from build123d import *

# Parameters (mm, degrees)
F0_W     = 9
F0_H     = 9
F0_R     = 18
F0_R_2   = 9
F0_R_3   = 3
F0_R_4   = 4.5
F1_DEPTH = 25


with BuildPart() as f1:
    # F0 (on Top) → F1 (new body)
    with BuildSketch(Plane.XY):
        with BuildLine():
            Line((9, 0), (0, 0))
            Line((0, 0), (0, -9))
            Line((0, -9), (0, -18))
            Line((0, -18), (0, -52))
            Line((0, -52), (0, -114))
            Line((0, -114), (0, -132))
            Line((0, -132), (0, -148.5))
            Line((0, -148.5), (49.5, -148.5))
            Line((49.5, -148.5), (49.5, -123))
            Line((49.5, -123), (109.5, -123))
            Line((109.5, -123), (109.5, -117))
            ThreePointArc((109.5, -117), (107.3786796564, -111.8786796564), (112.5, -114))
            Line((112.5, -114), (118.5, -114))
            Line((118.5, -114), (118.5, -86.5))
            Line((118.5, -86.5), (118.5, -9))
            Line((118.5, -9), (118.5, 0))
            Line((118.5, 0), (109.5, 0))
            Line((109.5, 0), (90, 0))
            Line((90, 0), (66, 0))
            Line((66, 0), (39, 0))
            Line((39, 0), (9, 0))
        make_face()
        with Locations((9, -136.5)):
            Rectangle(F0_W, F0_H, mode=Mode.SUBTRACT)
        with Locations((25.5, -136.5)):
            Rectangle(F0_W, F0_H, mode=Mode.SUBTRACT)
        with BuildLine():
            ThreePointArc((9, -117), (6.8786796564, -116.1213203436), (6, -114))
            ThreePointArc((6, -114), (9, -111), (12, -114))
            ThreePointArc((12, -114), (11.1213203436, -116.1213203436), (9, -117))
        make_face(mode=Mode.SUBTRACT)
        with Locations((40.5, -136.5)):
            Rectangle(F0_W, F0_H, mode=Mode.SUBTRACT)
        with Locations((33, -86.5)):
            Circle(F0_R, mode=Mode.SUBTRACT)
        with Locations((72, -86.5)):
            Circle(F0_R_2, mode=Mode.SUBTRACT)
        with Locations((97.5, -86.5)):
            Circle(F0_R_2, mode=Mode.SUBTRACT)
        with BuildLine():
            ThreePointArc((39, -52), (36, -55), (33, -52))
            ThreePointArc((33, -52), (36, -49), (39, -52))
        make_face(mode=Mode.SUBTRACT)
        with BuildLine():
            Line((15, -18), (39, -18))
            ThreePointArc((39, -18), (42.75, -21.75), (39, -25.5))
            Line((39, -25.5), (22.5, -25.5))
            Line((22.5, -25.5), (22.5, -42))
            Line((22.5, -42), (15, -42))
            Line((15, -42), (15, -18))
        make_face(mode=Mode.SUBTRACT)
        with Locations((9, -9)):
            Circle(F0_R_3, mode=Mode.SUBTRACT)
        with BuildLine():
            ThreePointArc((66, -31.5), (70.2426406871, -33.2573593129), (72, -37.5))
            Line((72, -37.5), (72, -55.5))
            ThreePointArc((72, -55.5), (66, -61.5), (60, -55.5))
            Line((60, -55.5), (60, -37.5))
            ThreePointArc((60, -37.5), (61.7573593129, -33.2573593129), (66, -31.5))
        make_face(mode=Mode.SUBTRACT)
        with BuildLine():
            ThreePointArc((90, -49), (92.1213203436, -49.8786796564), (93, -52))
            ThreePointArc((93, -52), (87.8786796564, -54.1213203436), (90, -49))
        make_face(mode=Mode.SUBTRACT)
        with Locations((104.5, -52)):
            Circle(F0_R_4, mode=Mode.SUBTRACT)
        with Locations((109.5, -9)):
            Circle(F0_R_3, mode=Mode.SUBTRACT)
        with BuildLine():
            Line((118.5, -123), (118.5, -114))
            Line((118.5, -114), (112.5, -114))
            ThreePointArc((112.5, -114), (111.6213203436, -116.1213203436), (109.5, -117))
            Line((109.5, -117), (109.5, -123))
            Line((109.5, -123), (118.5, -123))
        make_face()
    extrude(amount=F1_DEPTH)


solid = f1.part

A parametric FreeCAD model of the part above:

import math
import FreeCAD as App
import Part
import Sketcher

doc = App.newDocument("Part")
params = doc.addObject("Spreadsheet::Sheet", "Params")
for row, (alias, value) in enumerate([
    ("sketch1_diameter", "36 mm"),
    ("sketch1_diameter2", "18 mm"),
    ("sketch1_diameter3", "6 mm"),
    ("sketch1_diameter4", "9 mm"),
    ("sketch1_radius", "6 mm"),
    ("pad1_length", "25 mm"),
], start=1):
    params.set(f"A{row}", alias)
    params.set(f"B{row}", "=" + value)
    params.setAlias(f"B{row}", alias)

body = doc.addObject("PartDesign::Body", "Body")

sketch1 = body.newObject("Sketcher::SketchObject", "Sketch")
sketch1.AttachmentSupport = (doc.getObject("XY_Plane"), [""])
sketch1.MapMode = "FlatFace"
sketch1.addGeometry(Part.LineSegment(App.Vector(0, 0, 0), App.Vector(0, -148.5, 0)), False)
sketch1.addGeometry(Part.LineSegment(App.Vector(0, -148.5, 0), App.Vector(49.5, -148.5, 0)), False)
sketch1.addGeometry(Part.LineSegment(App.Vector(49.5, -148.5, 0), App.Vector(49.5, -123, 0)), False)
sketch1.addGeometry(Part.LineSegment(App.Vector(49.5, -123, 0), App.Vector(118.5, -123, 0)), False)
sketch1.addGeometry(Part.LineSegment(App.Vector(118.5, -123, 0), App.Vector(118.5, 0, 0)), False)
sketch1.addGeometry(Part.LineSegment(App.Vector(118.5, 0, 0), App.Vector(0, 0, 0)), False)
sketch1.addGeometry(Part.ArcOfCircle(Part.Circle(App.Vector(109.5, -114, 0), App.Vector(0, 0, 1), 3), math.radians(0), math.radians(270)), False)
sketch1.addGeometry(Part.ArcOfCircle(Part.Circle(App.Vector(109.5, -114, 0), App.Vector(0, 0, 1), 3), math.radians(-90), math.radians(0)), False)
sketch1.addGeometry(Part.LineSegment(App.Vector(13.5, -141, 0), App.Vector(4.5, -141, 0)), False)
sketch1.addGeometry(Part.LineSegment(App.Vector(4.5, -141, 0), App.Vector(4.5, -132, 0)), False)
sketch1.addGeometry(Part.LineSegment(App.Vector(4.5, -132, 0), App.Vector(13.5, -132, 0)), False)
sketch1.addGeometry(Part.LineSegment(App.Vector(13.5, -132, 0), App.Vector(13.5, -141, 0)), False)
sketch1.addGeometry(Part.LineSegment(App.Vector(30, -141, 0), App.Vector(21, -141, 0)), False)
sketch1.addGeometry(Part.LineSegment(App.Vector(21, -141, 0), App.Vector(21, -132, 0)), False)
sketch1.addGeometry(Part.LineSegment(App.Vector(21, -132, 0), App.Vector(30, -132, 0)), False)
sketch1.addGeometry(Part.LineSegment(App.Vector(30, -132, 0), App.Vector(30, -141, 0)), False)
sketch1.addGeometry(Part.ArcOfCircle(Part.Circle(App.Vector(9, -114, 0), App.Vector(0, 0, 1), 3), math.radians(-90), math.radians(0)), False)
sketch1.addGeometry(Part.ArcOfCircle(Part.Circle(App.Vector(9, -114, 0), App.Vector(0, 0, 1), 3), math.radians(180), math.radians(270)), False)
sketch1.addGeometry(Part.ArcOfCircle(Part.Circle(App.Vector(9, -114, 0), App.Vector(0, 0, 1), 3), math.radians(0), math.radians(180)), False)
sketch1.addGeometry(Part.LineSegment(App.Vector(45, -141, 0), App.Vector(36, -141, 0)), False)
sketch1.addGeometry(Part.LineSegment(App.Vector(36, -141, 0), App.Vector(36, -132, 0)), False)
sketch1.addGeometry(Part.LineSegment(App.Vector(36, -132, 0), App.Vector(45, -132, 0)), False)
sketch1.addGeometry(Part.LineSegment(App.Vector(45, -132, 0), App.Vector(45, -141, 0)), False)
sketch1.addGeometry(Part.Circle(App.Vector(33, -86.5, 0), App.Vector(0, 0, 1), 18), False)
sketch1.addGeometry(Part.Circle(App.Vector(72, -86.5, 0), App.Vector(0, 0, 1), 9), False)
sketch1.addGeometry(Part.Circle(App.Vector(97.5, -86.5, 0), App.Vector(0, 0, 1), 9), False)
sketch1.addGeometry(Part.Circle(App.Vector(36, -52, 0), App.Vector(0, 0, 1), 3), False)
sketch1.addGeometry(Part.LineSegment(App.Vector(15, -42, 0), App.Vector(15, -18, 0)), False)
sketch1.addGeometry(Part.LineSegment(App.Vector(15, -18, 0), App.Vector(39, -18, 0)), False)
sketch1.addGeometry(Part.ArcOfCircle(Part.Circle(App.Vector(39, -21.8, 0), App.Vector(0, 0, 1), 3.8), math.radians(-90), math.radians(90)), False)
sketch1.addGeometry(Part.LineSegment(App.Vector(39, -25.5, 0), App.Vector(22.5, -25.5, 0)), False)
sketch1.addGeometry(Part.LineSegment(App.Vector(22.5, -25.5, 0), App.Vector(22.5, -42, 0)), False)
sketch1.addGeometry(Part.LineSegment(App.Vector(22.5, -42, 0), App.Vector(15, -42, 0)), False)
sketch1.addGeometry(Part.Circle(App.Vector(9, -9, 0), App.Vector(0, 0, 1), 3), False)
sketch1.addGeometry(Part.ArcOfCircle(Part.Circle(App.Vector(66, -37.5, 0), App.Vector(0, 0, 1), 6), math.radians(90), math.radians(180)), False)
sketch1.addGeometry(Part.ArcOfCircle(Part.Circle(App.Vector(66, -37.5, 0), App.Vector(0, 0, 1), 6), math.radians(0), math.radians(90)), False)
sketch1.addGeometry(Part.LineSegment(App.Vector(72, -37.5, 0), App.Vector(72, -55.5, 0)), False)
sketch1.addGeometry(Part.ArcOfCircle(Part.Circle(App.Vector(66, -55.5, 0), App.Vector(0, 0, 1), 6), math.radians(180), math.radians(360)), False)
sketch1.addGeometry(Part.LineSegment(App.Vector(60, -55.5, 0), App.Vector(60, -37.5, 0)), False)
sketch1.addGeometry(Part.ArcOfCircle(Part.Circle(App.Vector(90, -52, 0), App.Vector(0, 0, 1), 3), math.radians(90), math.radians(360)), False)
sketch1.addGeometry(Part.ArcOfCircle(Part.Circle(App.Vector(90, -52, 0), App.Vector(0, 0, 1), 3), math.radians(0), math.radians(90)), False)
sketch1.addGeometry(Part.Circle(App.Vector(104.5, -52, 0), App.Vector(0, 0, 1), 4.5), False)
sketch1.addGeometry(Part.Circle(App.Vector(109.5, -9, 0), App.Vector(0, 0, 1), 3), False)
sketch1.addConstraint(Sketcher.Constraint("Coincident", 0, 2, 1, 1))
sketch1.addConstraint(Sketcher.Constraint("Coincident", 1, 2, 2, 1))
sketch1.addConstraint(Sketcher.Constraint("Coincident", 2, 2, 3, 1))
sketch1.addConstraint(Sketcher.Constraint("Coincident", 3, 2, 4, 1))
sketch1.addConstraint(Sketcher.Constraint("Coincident", 4, 2, 5, 1))
sketch1.addConstraint(Sketcher.Constraint("Coincident", 5, 2, 0, 1))
sketch1.addConstraint(Sketcher.Constraint("Tangent", 6, 1, 7, 2))
sketch1.addConstraint(Sketcher.Constraint("Coincident", 7, 1, 6, 2))
sketch1.addConstraint(Sketcher.Constraint("Coincident", 8, 2, 9, 1))
sketch1.addConstraint(Sketcher.Constraint("Coincident", 9, 2, 10, 1))
sketch1.addConstraint(Sketcher.Constraint("Coincident", 10, 2, 11, 1))
sketch1.addConstraint(Sketcher.Constraint("Coincident", 11, 2, 8, 1))
sketch1.addConstraint(Sketcher.Constraint("Coincident", 12, 2, 13, 1))
sketch1.addConstraint(Sketcher.Constraint("Coincident", 13, 2, 14, 1))
sketch1.addConstraint(Sketcher.Constraint("Coincident", 14, 2, 15, 1))
sketch1.addConstraint(Sketcher.Constraint("Coincident", 15, 2, 12, 1))
sketch1.addConstraint(Sketcher.Constraint("Tangent", 16, 1, 17, 2))
sketch1.addConstraint(Sketcher.Constraint("Tangent", 17, 1, 18, 2))
sketch1.addConstraint(Sketcher.Constraint("Tangent", 18, 1, 16, 2))
sketch1.addConstraint(Sketcher.Constraint("Coincident", 19, 2, 20, 1))
sketch1.addConstraint(Sketcher.Constraint("Coincident", 20, 2, 21, 1))
sketch1.addConstraint(Sketcher.Constraint("Coincident", 21, 2, 22, 1))
sketch1.addConstraint(Sketcher.Constraint("Coincident", 22, 2, 19, 1))
sketch1.addConstraint(Sketcher.Constraint("Coincident", 27, 2, 28, 1))
sketch1.addConstraint(Sketcher.Constraint("Tangent", 28, 2, 29, 2))
sketch1.addConstraint(Sketcher.Constraint("Tangent", 29, 1, 30, 1))
sketch1.addConstraint(Sketcher.Constraint("Coincident", 30, 2, 31, 1))
sketch1.addConstraint(Sketcher.Constraint("Coincident", 31, 2, 32, 1))
sketch1.addConstraint(Sketcher.Constraint("Coincident", 32, 2, 27, 1))
sketch1.addConstraint(Sketcher.Constraint("Tangent", 34, 1, 35, 2))
sketch1.addConstraint(Sketcher.Constraint("Tangent", 35, 1, 36, 1))
sketch1.addConstraint(Sketcher.Constraint("Tangent", 36, 2, 37, 2))
sketch1.addConstraint(Sketcher.Constraint("Tangent", 37, 1, 38, 1))
sketch1.addConstraint(Sketcher.Constraint("Tangent", 38, 2, 34, 2))
sketch1.addConstraint(Sketcher.Constraint("Tangent", 39, 1, 40, 2))
sketch1.addConstraint(Sketcher.Constraint("Coincident", 40, 1, 39, 2))
sketch1.addConstraint(Sketcher.Constraint("Vertical", 0))
sketch1.addConstraint(Sketcher.Constraint("Horizontal", 1))
sketch1.addConstraint(Sketcher.Constraint("Vertical", 2))
sketch1.addConstraint(Sketcher.Constraint("Horizontal", 3))
sketch1.addConstraint(Sketcher.Constraint("Vertical", 4))
sketch1.addConstraint(Sketcher.Constraint("Horizontal", 5))
sketch1.addConstraint(Sketcher.Constraint("Horizontal", 8))
sketch1.addConstraint(Sketcher.Constraint("Vertical", 9))
sketch1.addConstraint(Sketcher.Constraint("Horizontal", 10))
sketch1.addConstraint(Sketcher.Constraint("Vertical", 11))
sketch1.addConstraint(Sketcher.Constraint("Horizontal", 12))
sketch1.addConstraint(Sketcher.Constraint("Vertical", 13))
sketch1.addConstraint(Sketcher.Constraint("Horizontal", 14))
sketch1.addConstraint(Sketcher.Constraint("Vertical", 15))
sketch1.addConstraint(Sketcher.Constraint("Horizontal", 19))
sketch1.addConstraint(Sketcher.Constraint("Vertical", 20))
sketch1.addConstraint(Sketcher.Constraint("Horizontal", 21))
sketch1.addConstraint(Sketcher.Constraint("Vertical", 22))
sketch1.addConstraint(Sketcher.Constraint("Vertical", 27))
sketch1.addConstraint(Sketcher.Constraint("Horizontal", 28))
sketch1.addConstraint(Sketcher.Constraint("Horizontal", 30))
sketch1.addConstraint(Sketcher.Constraint("Vertical", 31))
sketch1.addConstraint(Sketcher.Constraint("Horizontal", 32))
sketch1.addConstraint(Sketcher.Constraint("Vertical", 36))
sketch1.addConstraint(Sketcher.Constraint("Vertical", 38))
sketch1.addConstraint(Sketcher.Constraint("Coincident", 5, 2, -1, 1))
sketch1.addConstraint(Sketcher.Constraint("Equal", 7, 16))
sketch1.addConstraint(Sketcher.Constraint("Equal", 24, 25))
sketch1.addConstraint(Sketcher.Constraint("Equal", 18, 26))
sketch1.addConstraint(Sketcher.Constraint("Equal", 26, 33))
sketch1.addConstraint(Sketcher.Constraint("Equal", 34, 35))
sketch1.addConstraint(Sketcher.Constraint("Equal", 33, 39))
sketch1.addConstraint(Sketcher.Constraint("Equal", 40, 42))
sketch1.addConstraint(Sketcher.Constraint("Horizontal", 7, 3, 16, 3))
sketch1.addConstraint(Sketcher.Constraint("Horizontal", 23, 3, 24, 3))
sketch1.addConstraint(Sketcher.Constraint("Horizontal", 24, 3, 25, 3))
sketch1.addConstraint(Sketcher.Constraint("Horizontal", 26, 3, 39, 3))
sketch1.addConstraint(Sketcher.Constraint("Horizontal", 40, 3, 41, 3))
sketch1.addConstraint(Sketcher.Constraint("Horizontal", 33, 3, 42, 3))
sketch1.addConstraint(Sketcher.Constraint("Horizontal", 18, 3, 6, 1))
sketch1.addConstraint(Sketcher.Constraint("Horizontal", 11, 2, 12, 2))
sketch1.addConstraint(Sketcher.Constraint("Horizontal", 10, 2, 13, 2))
sketch1.addConstraint(Sketcher.Constraint("Horizontal", 6, 1, 17, 1))
sketch1.addConstraint(Sketcher.Constraint("Horizontal", 17, 1, 18, 1))
sketch1.addConstraint(Sketcher.Constraint("Horizontal", 15, 2, 19, 2))
sketch1.addConstraint(Sketcher.Constraint("Horizontal", 14, 2, 20, 2))
sketch1.addConstraint(Sketcher.Constraint("Horizontal", 41, 3, 40, 1))
sketch1.addConstraint(Sketcher.Constraint("Vertical", 18, 3, 33, 3))
sketch1.addConstraint(Sketcher.Constraint("Vertical", 7, 3, 42, 3))
sketch1.addConstraint(Sketcher.Constraint("Vertical", 42, 3, 7, 1))
sketch1.addConstraint(Sketcher.Constraint("Vertical", 33, 3, 16, 1))
sketch1.addConstraint(Sketcher.Constraint("Vertical", 26, 3, 19, 2))
sketch1.addConstraint(Sketcher.Constraint("Vertical", 37, 3, 34, 1))
sketch1.addConstraint(Sketcher.Constraint("Vertical", 24, 3, 35, 1))
sketch1.addConstraint(Sketcher.Constraint("Vertical", 40, 3, 39, 1))
sketch1.addConstraint(Sketcher.Constraint("Equal", 10, 12))
sketch1.addConstraint(Sketcher.Constraint("Equal", 14, 19))
sketch1.addConstraint(Sketcher.Constraint("Equal", 21, 9))
sketch1.addConstraint(Sketcher.Constraint("Equal", 28, 27))
sketch1.addConstraint(Sketcher.Constraint("Equal", 30, 31))
sketch1.addConstraint(Sketcher.Constraint("Diameter", 23, 36.0))
sketch1.addConstraint(Sketcher.Constraint("Diameter", 24, 18.0))
sketch1.addConstraint(Sketcher.Constraint("Diameter", 26, 6.0))
sketch1.addConstraint(Sketcher.Constraint("Diameter", 41, 9.0))
sketch1.addConstraint(Sketcher.Constraint("Radius", 34, 6.0))
sketch1.addConstraint(Sketcher.Constraint("DistanceX", 3, 1, 3, 2, 69.0))
sketch1.addConstraint(Sketcher.Constraint("DistanceX", 8, 2, 8, 1, 9.0))
sketch1.addConstraint(Sketcher.Constraint("DistanceX", 28, 1, 28, 2, 24.0))
sketch1.addConstraint(Sketcher.Constraint("DistanceY", 4, 1, 4, 2, 123.0))
sketch1.addConstraint(Sketcher.Constraint("DistanceY", 36, 2, 36, 1, 18.0))
sketch1.addConstraint(Sketcher.Constraint("Radius", 29, 3.75))
sketch1.addConstraint(Sketcher.Constraint("DistanceX", 1, 1, 1, 2, 49.5))
sketch1.addConstraint(Sketcher.Constraint("DistanceY", 0, 2, 0, 1, 148.5))
sketch1.addConstraint(Sketcher.Constraint("DistanceY", 6, 3, -1, 1, 114.0))
sketch1.addConstraint(Sketcher.Constraint("DistanceX", -1, 1, 16, 3, 9.0))
sketch1.addConstraint(Sketcher.Constraint("DistanceX", -1, 1, 23, 3, 33.0))
sketch1.addConstraint(Sketcher.Constraint("DistanceX", -1, 1, 24, 3, 72.0))
sketch1.addConstraint(Sketcher.Constraint("DistanceX", -1, 1, 26, 3, 36.0))
sketch1.addConstraint(Sketcher.Constraint("DistanceY", 26, 3, -1, 1, 52.0))
sketch1.addConstraint(Sketcher.Constraint("DistanceX", -1, 1, 29, 3, 39.0))
sketch1.addConstraint(Sketcher.Constraint("DistanceY", 33, 3, -1, 1, 9.0))
sketch1.addConstraint(Sketcher.Constraint("DistanceX", -1, 1, 39, 3, 90.0))
sketch1.addConstraint(Sketcher.Constraint("DistanceY", 8, 2, -1, 1, 141.0))
sketch1.addConstraint(Sketcher.Constraint("DistanceX", -1, 1, 12, 2, 21.0))
sketch1.addConstraint(Sketcher.Constraint("DistanceY", 27, 2, -1, 1, 18.0))
sketch1.addConstraint(Sketcher.Constraint("DistanceX", 25, 3, 6, 3, 12.0))
sketch1.addConstraint(Sketcher.Constraint("DistanceY", 24, 3, 34, 3, 49.0))
sketch1.addConstraint(Sketcher.Constraint("DistanceX", 25, 3, 41, 3, 7.0))
sketch1.addConstraint(Sketcher.Constraint("DistanceY", 0, 2, 23, 3, 62.0))
sketch1.addConstraint(Sketcher.Constraint("DistanceX", 6, 3, 3, 2, 9.0))
sketch1.addConstraint(Sketcher.Constraint("DistanceX", 8, 2, 1, 2, 45.0))
sketch1.setExpression("Constraints[96]", "Params.sketch1_diameter")
sketch1.setExpression("Constraints[97]", "Params.sketch1_diameter2")
sketch1.setExpression("Constraints[98]", "Params.sketch1_diameter3")
sketch1.setExpression("Constraints[99]", "Params.sketch1_diameter4")
sketch1.setExpression("Constraints[100]", "Params.sketch1_radius")
pad1 = body.newObject("PartDesign::Pad", "Pad")
pad1.Profile = sketch1
pad1.setExpression("Length", "Params.pad1_length")

doc.recompute()
